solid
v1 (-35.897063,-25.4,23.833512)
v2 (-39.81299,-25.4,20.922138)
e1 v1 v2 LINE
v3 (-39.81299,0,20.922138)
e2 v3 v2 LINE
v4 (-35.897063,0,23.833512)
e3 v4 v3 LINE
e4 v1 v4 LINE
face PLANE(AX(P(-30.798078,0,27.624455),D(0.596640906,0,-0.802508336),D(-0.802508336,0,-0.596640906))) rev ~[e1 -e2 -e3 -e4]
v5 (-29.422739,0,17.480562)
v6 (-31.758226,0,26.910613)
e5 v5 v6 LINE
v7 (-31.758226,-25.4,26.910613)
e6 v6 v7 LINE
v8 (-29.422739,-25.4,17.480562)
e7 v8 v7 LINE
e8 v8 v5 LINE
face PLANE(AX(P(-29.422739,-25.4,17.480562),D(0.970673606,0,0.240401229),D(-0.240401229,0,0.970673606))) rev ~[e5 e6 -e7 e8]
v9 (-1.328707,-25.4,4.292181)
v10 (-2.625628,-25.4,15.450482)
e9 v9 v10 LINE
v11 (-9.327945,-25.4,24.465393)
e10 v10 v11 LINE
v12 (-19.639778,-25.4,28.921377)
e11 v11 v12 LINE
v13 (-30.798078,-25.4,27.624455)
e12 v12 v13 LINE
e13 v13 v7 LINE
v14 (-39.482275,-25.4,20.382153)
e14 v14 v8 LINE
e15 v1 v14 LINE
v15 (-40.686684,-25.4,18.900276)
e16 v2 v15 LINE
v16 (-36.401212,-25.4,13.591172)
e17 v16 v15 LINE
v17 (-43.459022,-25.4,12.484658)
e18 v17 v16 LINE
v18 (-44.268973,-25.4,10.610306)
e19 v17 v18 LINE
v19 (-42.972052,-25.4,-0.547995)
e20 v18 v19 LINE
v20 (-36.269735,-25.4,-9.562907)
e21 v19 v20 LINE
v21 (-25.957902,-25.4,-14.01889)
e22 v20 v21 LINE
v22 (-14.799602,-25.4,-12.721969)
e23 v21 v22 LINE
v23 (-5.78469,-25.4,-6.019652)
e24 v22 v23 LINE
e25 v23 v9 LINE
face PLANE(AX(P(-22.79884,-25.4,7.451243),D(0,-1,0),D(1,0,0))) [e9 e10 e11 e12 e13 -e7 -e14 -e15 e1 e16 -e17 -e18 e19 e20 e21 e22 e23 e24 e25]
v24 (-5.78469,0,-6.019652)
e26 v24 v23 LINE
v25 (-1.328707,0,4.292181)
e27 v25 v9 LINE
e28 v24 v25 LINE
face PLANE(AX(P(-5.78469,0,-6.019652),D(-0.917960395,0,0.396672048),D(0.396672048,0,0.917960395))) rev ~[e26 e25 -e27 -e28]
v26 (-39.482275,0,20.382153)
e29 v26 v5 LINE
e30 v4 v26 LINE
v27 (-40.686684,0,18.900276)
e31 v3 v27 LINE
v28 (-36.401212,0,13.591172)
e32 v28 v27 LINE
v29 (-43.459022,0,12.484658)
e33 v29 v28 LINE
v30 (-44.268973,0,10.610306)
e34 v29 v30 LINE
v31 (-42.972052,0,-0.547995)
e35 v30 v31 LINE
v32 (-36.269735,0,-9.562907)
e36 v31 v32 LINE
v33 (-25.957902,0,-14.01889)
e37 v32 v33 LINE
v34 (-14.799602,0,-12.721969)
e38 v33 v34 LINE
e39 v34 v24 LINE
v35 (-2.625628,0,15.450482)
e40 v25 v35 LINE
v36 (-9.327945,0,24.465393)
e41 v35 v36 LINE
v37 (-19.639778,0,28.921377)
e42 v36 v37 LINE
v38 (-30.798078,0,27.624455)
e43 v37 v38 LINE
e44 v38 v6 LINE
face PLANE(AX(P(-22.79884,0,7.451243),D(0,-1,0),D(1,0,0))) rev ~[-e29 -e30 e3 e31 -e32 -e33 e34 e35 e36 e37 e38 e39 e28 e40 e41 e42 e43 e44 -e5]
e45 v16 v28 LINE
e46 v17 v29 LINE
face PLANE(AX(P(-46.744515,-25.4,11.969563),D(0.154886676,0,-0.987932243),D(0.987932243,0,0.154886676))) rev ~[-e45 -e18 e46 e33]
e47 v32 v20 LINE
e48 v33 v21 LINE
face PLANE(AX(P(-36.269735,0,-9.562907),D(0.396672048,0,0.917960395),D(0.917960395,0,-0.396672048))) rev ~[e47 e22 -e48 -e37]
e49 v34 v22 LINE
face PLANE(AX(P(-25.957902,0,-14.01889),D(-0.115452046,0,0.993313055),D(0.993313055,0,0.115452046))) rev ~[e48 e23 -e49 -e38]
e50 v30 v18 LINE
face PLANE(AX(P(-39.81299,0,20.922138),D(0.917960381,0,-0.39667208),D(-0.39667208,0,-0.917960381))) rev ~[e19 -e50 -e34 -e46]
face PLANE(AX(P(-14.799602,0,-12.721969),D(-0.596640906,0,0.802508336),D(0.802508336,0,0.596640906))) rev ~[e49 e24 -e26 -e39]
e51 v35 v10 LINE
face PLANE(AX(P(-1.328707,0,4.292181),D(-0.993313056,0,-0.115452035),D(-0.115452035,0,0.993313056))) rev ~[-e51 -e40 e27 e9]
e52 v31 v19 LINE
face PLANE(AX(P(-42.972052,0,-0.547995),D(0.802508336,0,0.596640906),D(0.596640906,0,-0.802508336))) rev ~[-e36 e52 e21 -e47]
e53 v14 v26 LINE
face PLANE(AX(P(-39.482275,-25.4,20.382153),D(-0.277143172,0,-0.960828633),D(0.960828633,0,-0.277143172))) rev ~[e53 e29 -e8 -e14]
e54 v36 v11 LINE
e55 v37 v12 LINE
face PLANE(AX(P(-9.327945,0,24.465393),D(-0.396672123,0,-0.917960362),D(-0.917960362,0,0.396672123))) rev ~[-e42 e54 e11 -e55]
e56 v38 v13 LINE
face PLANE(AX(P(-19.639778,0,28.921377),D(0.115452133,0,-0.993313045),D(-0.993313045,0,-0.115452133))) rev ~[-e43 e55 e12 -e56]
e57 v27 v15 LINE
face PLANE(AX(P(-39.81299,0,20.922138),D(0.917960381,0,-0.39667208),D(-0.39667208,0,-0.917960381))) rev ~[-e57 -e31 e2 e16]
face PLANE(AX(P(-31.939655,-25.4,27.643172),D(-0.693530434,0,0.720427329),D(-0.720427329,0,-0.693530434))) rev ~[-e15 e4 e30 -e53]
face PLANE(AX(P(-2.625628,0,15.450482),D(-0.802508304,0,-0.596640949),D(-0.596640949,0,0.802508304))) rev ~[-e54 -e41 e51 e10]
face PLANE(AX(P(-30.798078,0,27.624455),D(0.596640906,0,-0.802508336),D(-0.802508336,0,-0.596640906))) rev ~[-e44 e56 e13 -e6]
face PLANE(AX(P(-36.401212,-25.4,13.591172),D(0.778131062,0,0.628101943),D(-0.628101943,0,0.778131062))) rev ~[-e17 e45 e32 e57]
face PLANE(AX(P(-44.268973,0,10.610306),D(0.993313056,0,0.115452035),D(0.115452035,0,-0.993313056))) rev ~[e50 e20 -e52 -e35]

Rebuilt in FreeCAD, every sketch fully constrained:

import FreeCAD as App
import Part
import Sketcher
from FreeCAD import Vector
Q = App.Units.Quantity

doc = App.newDocument("Part")
body = doc.addObject("PartDesign::Body", "Body")

sketch1 = body.newObject("Sketcher::SketchObject", "Sketch")
sketch1.AttachmentSupport = (doc.getObject("XZ_Plane"), [""])
sketch1.MapMode = "FlatFace"
sketch1.addGeometry(Part.LineSegment(Vector(-3, 15, 0), Vector(-9, 24, 0)), False)
sketch1.addGeometry(Part.LineSegment(Vector(-9, 24, 0), Vector(-20, 29, 0)), False)
sketch1.addGeometry(Part.LineSegment(Vector(-20, 29, 0), Vector(-31, 28, 0)), False)
sketch1.addGeometry(Part.LineSegment(Vector(-31, 28, 0), Vector(-40, 21, 0)), False)
sketch1.addGeometry(Part.LineSegment(Vector(-40, 21, 0), Vector(-44, 11, 0)), False)
sketch1.addGeometry(Part.LineSegment(Vector(-44, 11, 0), Vector(-43, -1, 0)), False)
sketch1.addGeometry(Part.LineSegment(Vector(-43, -1, 0), Vector(-36, -10, 0)), False)
sketch1.addGeometry(Part.LineSegment(Vector(-36, -10, 0), Vector(-26, -14, 0)), False)
sketch1.addGeometry(Part.LineSegment(Vector(-26, -14, 0), Vector(-15, -13, 0)), False)
sketch1.addGeometry(Part.LineSegment(Vector(-15, -13, 0), Vector(-6, -6, 0)), False)
sketch1.addGeometry(Part.LineSegment(Vector(-6, -6, 0), Vector(-1, 4, 0)), False)
sketch1.addGeometry(Part.LineSegment(Vector(-1, 4, 0), Vector(-3, 15, 0)), False)
sketch1.addConstraint(Sketcher.Constraint("Coincident", 0, 2, 1, 1))
sketch1.addConstraint(Sketcher.Constraint("Coincident", 1, 2, 2, 1))
sketch1.addConstraint(Sketcher.Constraint("Coincident", 2, 2, 3, 1))
sketch1.addConstraint(Sketcher.Constraint("Coincident", 3, 2, 4, 1))
sketch1.addConstraint(Sketcher.Constraint("Coincident", 4, 2, 5, 1))
sketch1.addConstraint(Sketcher.Constraint("Coincident", 5, 2, 6, 1))
sketch1.addConstraint(Sketcher.Constraint("Coincident", 6, 2, 7, 1))
sketch1.addConstraint(Sketcher.Constraint("Coincident", 7, 2, 8, 1))
sketch1.addConstraint(Sketcher.Constraint("Coincident", 8, 2, 9, 1))
sketch1.addConstraint(Sketcher.Constraint("Coincident", 9, 2, 10, 1))
sketch1.addConstraint(Sketcher.Constraint("Coincident", 10, 2, 11, 1))
sketch1.addConstraint(Sketcher.Constraint("Coincident", 11, 2, 0, 1))
sketch1.addConstraint(Sketcher.Constraint("Perpendicular", 0, 3))
sketch1.addConstraint(Sketcher.Constraint("Perpendicular", 1, 4))
sketch1.addConstraint(Sketcher.Constraint("Perpendicular", 2, 5))
sketch1.addConstraint(Sketcher.Constraint("Perpendicular", 3, 6))
sketch1.addConstraint(Sketcher.Constraint("Perpendicular", 4, 7))
sketch1.addConstraint(Sketcher.Constraint("Perpendicular", 5, 8))
sketch1.addConstraint(Sketcher.Constraint("Perpendicular", 6, 9))
sketch1.addConstraint(Sketcher.Constraint("Perpendicular", 7, 10))
sketch1.addConstraint(Sketcher.Constraint("Perpendicular", 8, 11))
sketch1.addConstraint(Sketcher.Constraint("Equal", 0, 1))
sketch1.addConstraint(Sketcher.Constraint("Equal", 1, 2))
sketch1.addConstraint(Sketcher.Constraint("Equal", 2, 3))
sketch1.addConstraint(Sketcher.Constraint("Equal", 3, 4))
sketch1.addConstraint(Sketcher.Constraint("Equal", 4, 5))
sketch1.addConstraint(Sketcher.Constraint("Equal", 5, 6))
sketch1.addConstraint(Sketcher.Constraint("Equal", 6, 7))
sketch1.addConstraint(Sketcher.Constraint("Equal", 7, 8))
sketch1.addConstraint(Sketcher.Constraint("Equal", 8, 9))
sketch1.addConstraint(Sketcher.Constraint("DistanceX", 2, 2, 1, 2, 11.1583))
sketch1.addConstraint(Sketcher.Constraint("Distance", 1, 11.233419))
sketch1.addConstraint(Sketcher.Constraint("DistanceX", 1, 2, -1, 1, 19.639778))
sketch1.addConstraint(Sketcher.Constraint("DistanceX", 3, 2, -1, 1, 39.81299))
sketch1.addConstraint(Sketcher.Constraint("DistanceY", -1, 1, 3, 2, 20.922138))
sketch1.addConstraint(Sketcher.Constraint("DistanceX", 5, 2, -1, 1, 42.972052))
pad1 = body.newObject("PartDesign::Pad", "Pad")
pad1.Profile = sketch1
pad1.Length = Q("1 in")

sketch2 = body.newObject("Sketcher::SketchObject", "Sketch001")
sketch2.AttachmentSupport = (doc.getObject("XZ_Plane"), [""])
sketch2.MapMode = "FlatFace"
sketch2.AttachmentOffset = App.Placement(Vector(0, 0, 1 * 25.4), App.Rotation())
sketch2.addGeometry(Part.LineSegment(Vector(-43, 22, 0), Vector(-47, 12, 0)), False)
sketch2.addGeometry(Part.LineSegment(Vector(-47, 12, 0), Vector(-36, 14, 0)), False)
sketch2.addGeometry(Part.LineSegment(Vector(-36, 14, 0), Vector(-43, 22, 0)), False)
sketch2.addConstraint(Sketcher.Constraint("Coincident", 0, 2, 1, 1))
sketch2.addConstraint(Sketcher.Constraint("Coincident", 1, 2, 2, 1))
sketch2.addConstraint(Sketcher.Constraint("Coincident", 2, 2, 0, 1))
sketch2.addConstraint(Sketcher.Constraint("Equal", 0, 1))
sketch2.addConstraint(Sketcher.Constraint("Equal", 1, 2))
sketch2.addConstraint(Sketcher.Constraint("Distance", 1, 10.469648))
sketch2.addConstraint(Sketcher.Constraint("DistanceY", -1, 1, 2, 2, 21.73793))
sketch2.addConstraint(Sketcher.Constraint("DistanceY", 0, 2, 1, 2, 1.621609))
sketch2.addConstraint(Sketcher.Constraint("DistanceX", 0, 2, -1, 1, 46.744515))
pocket1 = body.newObject("PartDesign::Pocket", "Pocket")
pocket1.Profile = sketch2
pocket1.Length = Q("1 in")

sketch3 = body.newObject("Sketcher::SketchObject", "Sketch002")
sketch3.AttachmentSupport = (doc.getObject("XZ_Plane"), [""])
sketch3.MapMode = "FlatFace"
sketch3.AttachmentOffset = App.Placement(Vector(0, 0, 1 * 25.4), App.Rotation())
sketch3.addGeometry(Part.LineSegment(Vector(-32, 28, 0), Vector(-39, 20, 0)), False)
sketch3.addGeometry(Part.LineSegment(Vector(-39, 20, 0), Vector(-29, 17, 0)), False)
sketch3.addGeometry(Part.LineSegment(Vector(-29, 17, 0), Vector(-32, 28, 0)), False)
sketch3.addConstraint(Sketcher.Constraint("Coincident", 0, 2, 1, 1))
sketch3.addConstraint(Sketcher.Constraint("Coincident", 1, 2, 2, 1))
sketch3.addConstraint(Sketcher.Constraint("Coincident", 2, 2, 0, 1))
sketch3.addConstraint(Sketcher.Constraint("Equal", 0, 1))
sketch3.addConstraint(Sketcher.Constraint("Equal", 1, 2))
sketch3.addConstraint(Sketcher.Constraint("DistanceX", 1, 2, -1, 1, 29.422739))
sketch3.addConstraint(Sketcher.Constraint("DistanceY", -1, 1, 1, 2, 17.480562))
sketch3.addConstraint(Sketcher.Constraint("DistanceY", -1, 1, 2, 2, 27.643172))
sketch3.addConstraint(Sketcher.Constraint("DistanceY", 1, 2, 0, 2, 2.901591))
pocket2 = body.newObject("PartDesign::Pocket", "Pocket001")
pocket2.Profile = sketch3
pocket2.Length = Q("1 in")

doc.recompute()
